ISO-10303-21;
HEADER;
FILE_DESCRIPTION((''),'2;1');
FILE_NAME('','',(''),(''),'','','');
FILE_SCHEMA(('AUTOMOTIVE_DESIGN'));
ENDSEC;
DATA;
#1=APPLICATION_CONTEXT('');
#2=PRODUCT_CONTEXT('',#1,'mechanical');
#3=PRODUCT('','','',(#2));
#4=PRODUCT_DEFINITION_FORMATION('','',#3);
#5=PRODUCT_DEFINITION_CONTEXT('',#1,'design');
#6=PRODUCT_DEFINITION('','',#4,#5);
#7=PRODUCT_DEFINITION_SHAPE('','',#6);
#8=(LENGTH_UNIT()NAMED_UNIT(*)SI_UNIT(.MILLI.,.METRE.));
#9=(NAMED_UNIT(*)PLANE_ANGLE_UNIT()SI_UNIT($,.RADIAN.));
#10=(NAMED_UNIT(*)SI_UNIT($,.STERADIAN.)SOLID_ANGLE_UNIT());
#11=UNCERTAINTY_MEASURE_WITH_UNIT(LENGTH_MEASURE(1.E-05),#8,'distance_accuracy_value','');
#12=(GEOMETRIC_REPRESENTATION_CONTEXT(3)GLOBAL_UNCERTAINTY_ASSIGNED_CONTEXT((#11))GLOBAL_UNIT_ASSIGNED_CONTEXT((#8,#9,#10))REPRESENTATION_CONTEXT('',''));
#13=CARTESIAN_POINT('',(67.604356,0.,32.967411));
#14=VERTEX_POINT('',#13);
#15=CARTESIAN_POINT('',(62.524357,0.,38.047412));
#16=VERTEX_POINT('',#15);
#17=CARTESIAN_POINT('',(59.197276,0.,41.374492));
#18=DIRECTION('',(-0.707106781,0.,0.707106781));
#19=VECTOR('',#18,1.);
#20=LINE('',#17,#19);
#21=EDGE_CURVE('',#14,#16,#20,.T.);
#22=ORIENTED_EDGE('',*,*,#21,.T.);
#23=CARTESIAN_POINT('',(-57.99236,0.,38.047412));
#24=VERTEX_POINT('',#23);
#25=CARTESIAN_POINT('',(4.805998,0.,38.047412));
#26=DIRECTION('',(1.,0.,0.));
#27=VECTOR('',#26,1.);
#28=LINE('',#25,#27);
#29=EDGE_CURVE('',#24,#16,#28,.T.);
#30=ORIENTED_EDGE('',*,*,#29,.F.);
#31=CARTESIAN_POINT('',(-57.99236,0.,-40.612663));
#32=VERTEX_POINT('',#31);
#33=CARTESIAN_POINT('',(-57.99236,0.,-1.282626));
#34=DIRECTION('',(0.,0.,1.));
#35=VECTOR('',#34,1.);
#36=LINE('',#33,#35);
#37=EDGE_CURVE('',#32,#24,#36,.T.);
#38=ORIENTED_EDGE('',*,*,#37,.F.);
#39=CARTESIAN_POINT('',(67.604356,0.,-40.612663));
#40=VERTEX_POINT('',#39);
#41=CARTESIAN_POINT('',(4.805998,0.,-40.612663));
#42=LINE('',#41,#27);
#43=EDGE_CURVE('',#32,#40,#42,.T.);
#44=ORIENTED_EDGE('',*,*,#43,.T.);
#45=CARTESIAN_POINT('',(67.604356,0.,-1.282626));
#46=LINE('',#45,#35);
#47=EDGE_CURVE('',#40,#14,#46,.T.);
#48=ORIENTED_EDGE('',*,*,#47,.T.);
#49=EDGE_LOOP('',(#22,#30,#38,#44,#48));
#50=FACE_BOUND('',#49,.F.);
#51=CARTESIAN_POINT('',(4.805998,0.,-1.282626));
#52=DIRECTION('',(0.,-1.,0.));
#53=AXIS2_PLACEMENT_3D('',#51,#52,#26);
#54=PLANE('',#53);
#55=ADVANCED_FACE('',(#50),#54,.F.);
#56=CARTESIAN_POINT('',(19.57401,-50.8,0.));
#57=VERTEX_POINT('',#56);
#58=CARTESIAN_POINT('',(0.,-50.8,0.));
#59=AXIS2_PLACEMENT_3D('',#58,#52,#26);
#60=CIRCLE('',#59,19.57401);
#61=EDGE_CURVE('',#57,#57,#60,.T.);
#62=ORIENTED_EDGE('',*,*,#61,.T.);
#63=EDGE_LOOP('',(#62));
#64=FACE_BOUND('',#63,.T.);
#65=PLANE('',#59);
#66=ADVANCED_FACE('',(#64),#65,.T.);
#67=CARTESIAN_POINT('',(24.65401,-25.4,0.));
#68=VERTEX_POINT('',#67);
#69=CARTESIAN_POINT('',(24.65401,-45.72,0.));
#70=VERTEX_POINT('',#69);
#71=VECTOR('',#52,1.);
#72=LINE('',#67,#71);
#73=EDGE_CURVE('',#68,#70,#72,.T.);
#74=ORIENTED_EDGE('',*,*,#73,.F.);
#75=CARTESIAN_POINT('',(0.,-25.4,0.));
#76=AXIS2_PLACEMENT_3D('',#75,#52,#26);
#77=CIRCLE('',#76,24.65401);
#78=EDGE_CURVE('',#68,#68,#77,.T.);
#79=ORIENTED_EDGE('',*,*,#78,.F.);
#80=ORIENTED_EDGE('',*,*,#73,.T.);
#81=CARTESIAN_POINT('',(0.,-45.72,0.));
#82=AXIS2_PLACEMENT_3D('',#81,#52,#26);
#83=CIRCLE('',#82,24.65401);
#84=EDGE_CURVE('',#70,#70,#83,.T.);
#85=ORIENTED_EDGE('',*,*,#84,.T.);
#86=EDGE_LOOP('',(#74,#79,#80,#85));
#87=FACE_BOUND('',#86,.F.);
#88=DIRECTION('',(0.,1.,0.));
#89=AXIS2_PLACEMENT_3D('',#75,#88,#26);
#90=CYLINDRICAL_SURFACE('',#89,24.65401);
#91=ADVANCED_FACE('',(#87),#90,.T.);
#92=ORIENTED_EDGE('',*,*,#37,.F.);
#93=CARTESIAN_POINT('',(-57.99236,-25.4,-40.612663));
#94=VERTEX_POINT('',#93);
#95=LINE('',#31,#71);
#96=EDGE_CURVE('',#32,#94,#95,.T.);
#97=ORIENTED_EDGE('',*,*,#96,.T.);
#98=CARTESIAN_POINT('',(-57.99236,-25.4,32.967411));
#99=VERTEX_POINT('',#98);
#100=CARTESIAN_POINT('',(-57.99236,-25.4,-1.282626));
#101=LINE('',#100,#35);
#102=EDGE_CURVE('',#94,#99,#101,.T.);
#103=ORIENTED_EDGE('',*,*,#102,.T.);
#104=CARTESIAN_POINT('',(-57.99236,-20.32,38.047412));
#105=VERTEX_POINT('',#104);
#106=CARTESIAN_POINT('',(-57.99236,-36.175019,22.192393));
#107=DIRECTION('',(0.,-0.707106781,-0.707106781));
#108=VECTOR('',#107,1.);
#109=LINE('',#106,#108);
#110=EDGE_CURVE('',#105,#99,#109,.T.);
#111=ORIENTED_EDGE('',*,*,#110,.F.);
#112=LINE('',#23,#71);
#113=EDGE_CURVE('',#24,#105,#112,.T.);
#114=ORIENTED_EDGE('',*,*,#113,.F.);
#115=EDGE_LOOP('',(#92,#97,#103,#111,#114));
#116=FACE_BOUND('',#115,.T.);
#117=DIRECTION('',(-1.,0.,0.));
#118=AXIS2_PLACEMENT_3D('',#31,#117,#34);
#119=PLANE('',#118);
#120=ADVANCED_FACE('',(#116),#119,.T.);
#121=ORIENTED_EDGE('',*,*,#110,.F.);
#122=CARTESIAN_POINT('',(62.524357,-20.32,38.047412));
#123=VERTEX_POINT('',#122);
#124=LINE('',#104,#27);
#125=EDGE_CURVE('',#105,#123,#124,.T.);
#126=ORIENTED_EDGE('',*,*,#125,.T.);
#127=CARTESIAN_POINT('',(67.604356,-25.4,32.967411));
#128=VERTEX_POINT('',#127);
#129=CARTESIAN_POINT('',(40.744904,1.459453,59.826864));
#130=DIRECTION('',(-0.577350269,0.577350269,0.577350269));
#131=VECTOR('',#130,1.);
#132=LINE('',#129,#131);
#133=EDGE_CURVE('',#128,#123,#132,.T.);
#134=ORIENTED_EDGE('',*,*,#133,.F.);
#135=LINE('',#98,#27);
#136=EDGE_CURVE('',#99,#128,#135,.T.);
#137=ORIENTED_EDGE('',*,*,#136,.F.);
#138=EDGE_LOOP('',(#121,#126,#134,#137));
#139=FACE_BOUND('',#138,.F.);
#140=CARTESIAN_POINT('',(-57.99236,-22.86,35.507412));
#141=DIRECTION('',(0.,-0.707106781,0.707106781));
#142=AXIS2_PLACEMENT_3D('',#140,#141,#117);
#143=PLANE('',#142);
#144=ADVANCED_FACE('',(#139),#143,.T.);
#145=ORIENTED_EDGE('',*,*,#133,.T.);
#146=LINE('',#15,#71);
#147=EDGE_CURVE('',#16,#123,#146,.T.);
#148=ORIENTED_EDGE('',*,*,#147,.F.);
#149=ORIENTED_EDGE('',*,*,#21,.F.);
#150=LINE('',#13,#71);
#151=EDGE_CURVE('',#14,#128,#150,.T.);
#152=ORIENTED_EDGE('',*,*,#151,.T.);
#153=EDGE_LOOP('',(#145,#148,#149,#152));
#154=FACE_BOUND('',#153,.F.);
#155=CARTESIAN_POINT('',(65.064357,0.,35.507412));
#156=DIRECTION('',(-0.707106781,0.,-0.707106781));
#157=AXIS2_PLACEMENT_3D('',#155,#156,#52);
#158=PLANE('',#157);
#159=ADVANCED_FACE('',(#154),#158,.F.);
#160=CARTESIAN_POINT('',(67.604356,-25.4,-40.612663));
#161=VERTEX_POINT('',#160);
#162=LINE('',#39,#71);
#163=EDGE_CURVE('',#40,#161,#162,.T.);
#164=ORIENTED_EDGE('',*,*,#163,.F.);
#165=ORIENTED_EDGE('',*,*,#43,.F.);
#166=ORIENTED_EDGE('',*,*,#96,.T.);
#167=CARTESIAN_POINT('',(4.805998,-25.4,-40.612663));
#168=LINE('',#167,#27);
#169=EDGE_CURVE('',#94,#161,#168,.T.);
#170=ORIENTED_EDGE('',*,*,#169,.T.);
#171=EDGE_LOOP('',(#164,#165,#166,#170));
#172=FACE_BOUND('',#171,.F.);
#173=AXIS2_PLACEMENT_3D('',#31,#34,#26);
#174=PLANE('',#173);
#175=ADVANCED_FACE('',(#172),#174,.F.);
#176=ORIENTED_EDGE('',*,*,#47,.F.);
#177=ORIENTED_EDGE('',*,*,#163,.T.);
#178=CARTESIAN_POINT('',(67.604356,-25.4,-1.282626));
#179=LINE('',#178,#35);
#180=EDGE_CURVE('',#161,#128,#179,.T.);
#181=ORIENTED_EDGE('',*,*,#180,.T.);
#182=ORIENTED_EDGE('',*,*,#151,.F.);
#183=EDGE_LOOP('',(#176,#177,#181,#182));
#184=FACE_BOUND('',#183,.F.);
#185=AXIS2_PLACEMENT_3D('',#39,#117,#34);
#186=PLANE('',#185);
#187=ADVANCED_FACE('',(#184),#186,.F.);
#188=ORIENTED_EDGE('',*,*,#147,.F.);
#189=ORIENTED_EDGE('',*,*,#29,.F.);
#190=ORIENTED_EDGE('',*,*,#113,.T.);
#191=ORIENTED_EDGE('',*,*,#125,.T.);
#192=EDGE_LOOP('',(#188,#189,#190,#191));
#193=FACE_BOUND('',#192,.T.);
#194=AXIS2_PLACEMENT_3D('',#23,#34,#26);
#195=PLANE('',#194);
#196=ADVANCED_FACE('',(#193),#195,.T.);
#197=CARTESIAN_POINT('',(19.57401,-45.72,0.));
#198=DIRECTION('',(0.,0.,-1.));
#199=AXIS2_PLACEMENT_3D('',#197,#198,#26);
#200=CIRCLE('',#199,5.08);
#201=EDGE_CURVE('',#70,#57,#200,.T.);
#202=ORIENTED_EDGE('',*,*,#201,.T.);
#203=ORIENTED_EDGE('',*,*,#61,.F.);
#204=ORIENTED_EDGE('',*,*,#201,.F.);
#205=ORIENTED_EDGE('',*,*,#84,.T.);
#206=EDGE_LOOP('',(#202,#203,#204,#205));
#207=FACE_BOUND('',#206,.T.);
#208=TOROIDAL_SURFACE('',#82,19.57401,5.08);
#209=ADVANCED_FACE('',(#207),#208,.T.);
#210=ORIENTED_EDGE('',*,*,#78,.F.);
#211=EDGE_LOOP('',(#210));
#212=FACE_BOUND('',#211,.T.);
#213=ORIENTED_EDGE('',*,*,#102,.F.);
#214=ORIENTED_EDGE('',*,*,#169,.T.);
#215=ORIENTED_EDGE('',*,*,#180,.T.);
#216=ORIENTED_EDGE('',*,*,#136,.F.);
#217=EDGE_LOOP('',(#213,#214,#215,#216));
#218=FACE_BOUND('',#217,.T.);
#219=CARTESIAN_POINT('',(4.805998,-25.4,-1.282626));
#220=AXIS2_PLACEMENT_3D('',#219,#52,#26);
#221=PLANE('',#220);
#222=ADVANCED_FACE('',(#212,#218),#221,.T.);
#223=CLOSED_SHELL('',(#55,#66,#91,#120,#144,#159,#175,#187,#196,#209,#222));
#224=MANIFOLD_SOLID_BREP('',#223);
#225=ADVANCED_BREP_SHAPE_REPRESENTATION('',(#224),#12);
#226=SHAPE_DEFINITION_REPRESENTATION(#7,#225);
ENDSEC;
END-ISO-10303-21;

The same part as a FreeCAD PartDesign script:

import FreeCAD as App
import Part
import Sketcher
Q = App.Units.Quantity


def edges_at(feature, points):
    """Names of the edges that pass closest to the given points."""
    edges = feature.Shape.Edges
    near = lambda p: min(range(len(edges)), key=lambda i: edges[i].distToShape(Part.Vertex(*p))[0])
    return sorted({f"Edge{near(p) + 1}" for p in points})

doc = App.newDocument("Part")
body = doc.addObject("PartDesign::Body", "Body")

# Sketch on XZ plane
sketch1 = body.newObject("Sketcher::SketchObject", "Sketch")
sketch1.AttachmentSupport = (doc.getObject("XZ_Plane"), [""])
sketch1.MapMode = "FlatFace"
sketch1.addGeometry(Part.LineSegment(App.Vector(-58, 38, 0), App.Vector(-58, -41, 0)), False)
sketch1.addGeometry(Part.LineSegment(App.Vector(-58, -41, 0), App.Vector(68, -41, 0)), False)
sketch1.addGeometry(Part.LineSegment(App.Vector(68, -41, 0), App.Vector(68, 38, 0)), False)
sketch1.addGeometry(Part.LineSegment(App.Vector(68, 38, 0), App.Vector(-58, 38, 0)), False)
sketch1.addConstraint(Sketcher.Constraint("Coincident", 0, 2, 1, 1))
sketch1.addConstraint(Sketcher.Constraint("Coincident", 1, 2, 2, 1))
sketch1.addConstraint(Sketcher.Constraint("Coincident", 2, 2, 3, 1))
sketch1.addConstraint(Sketcher.Constraint("Coincident", 3, 2, 0, 1))
sketch1.addConstraint(Sketcher.Constraint("Vertical", 0))
sketch1.addConstraint(Sketcher.Constraint("Horizontal", 1))
sketch1.addConstraint(Sketcher.Constraint("Vertical", 2))
sketch1.addConstraint(Sketcher.Constraint("Horizontal", 3))
sketch1.addConstraint(Sketcher.Constraint("DistanceX", 1, 1, 1, 2, 125.596717))
sketch1.addConstraint(Sketcher.Constraint("DistanceY", 0, 2, 0, 1, 78.660075))
sketch1.addConstraint(Sketcher.Constraint("DistanceX", 0, 2, -1, 1, 57.99236))
sketch1.addConstraint(Sketcher.Constraint("DistanceY", -1, 1, 2, 2, 38.047412))
pad1 = body.newObject("PartDesign::Pad", "Pad")
pad1.Profile = sketch1
pad1.Length = Q("1 in")
doc.recompute()

chamfer = body.newObject("PartDesign::Chamfer", "Chamfer")
chamfer.Base = (pad1, edges_at(pad1, [(67.604, -12.7, 38.047), (4.806, -25.4, 38.047)]))
chamfer.Size = Q("0.2 in")

# Sketch on XZ plane
sketch2 = body.newObject("Sketcher::SketchObject", "Sketch001")
sketch2.AttachmentSupport = (doc.getObject("XZ_Plane"), [""])
sketch2.MapMode = "FlatFace"
sketch2.AttachmentOffset = App.Placement(App.Vector(0, 0, 1 * 25.4), App.Rotation())
sketch2.addGeometry(Part.Circle(App.Vector(0, 0, 0), App.Vector(0, 0, 1), 25), False)
sketch2.addConstraint(Sketcher.Constraint("Coincident", 0, 3, -1, 1))
sketch2.addConstraint(Sketcher.Constraint("Diameter", 0, 49.30802))
pad2 = body.newObject("PartDesign::Pad", "Pad001")
pad2.Profile = sketch2
pad2.Length = Q("1 in")
doc.recompute()

fillet = body.newObject("PartDesign::Fillet", "Fillet")
fillet.Base = (pad2, edges_at(pad2, [(-24.654, -50.8, 0)]))
fillet.Radius = Q("0.2 in")

doc.recompute()
